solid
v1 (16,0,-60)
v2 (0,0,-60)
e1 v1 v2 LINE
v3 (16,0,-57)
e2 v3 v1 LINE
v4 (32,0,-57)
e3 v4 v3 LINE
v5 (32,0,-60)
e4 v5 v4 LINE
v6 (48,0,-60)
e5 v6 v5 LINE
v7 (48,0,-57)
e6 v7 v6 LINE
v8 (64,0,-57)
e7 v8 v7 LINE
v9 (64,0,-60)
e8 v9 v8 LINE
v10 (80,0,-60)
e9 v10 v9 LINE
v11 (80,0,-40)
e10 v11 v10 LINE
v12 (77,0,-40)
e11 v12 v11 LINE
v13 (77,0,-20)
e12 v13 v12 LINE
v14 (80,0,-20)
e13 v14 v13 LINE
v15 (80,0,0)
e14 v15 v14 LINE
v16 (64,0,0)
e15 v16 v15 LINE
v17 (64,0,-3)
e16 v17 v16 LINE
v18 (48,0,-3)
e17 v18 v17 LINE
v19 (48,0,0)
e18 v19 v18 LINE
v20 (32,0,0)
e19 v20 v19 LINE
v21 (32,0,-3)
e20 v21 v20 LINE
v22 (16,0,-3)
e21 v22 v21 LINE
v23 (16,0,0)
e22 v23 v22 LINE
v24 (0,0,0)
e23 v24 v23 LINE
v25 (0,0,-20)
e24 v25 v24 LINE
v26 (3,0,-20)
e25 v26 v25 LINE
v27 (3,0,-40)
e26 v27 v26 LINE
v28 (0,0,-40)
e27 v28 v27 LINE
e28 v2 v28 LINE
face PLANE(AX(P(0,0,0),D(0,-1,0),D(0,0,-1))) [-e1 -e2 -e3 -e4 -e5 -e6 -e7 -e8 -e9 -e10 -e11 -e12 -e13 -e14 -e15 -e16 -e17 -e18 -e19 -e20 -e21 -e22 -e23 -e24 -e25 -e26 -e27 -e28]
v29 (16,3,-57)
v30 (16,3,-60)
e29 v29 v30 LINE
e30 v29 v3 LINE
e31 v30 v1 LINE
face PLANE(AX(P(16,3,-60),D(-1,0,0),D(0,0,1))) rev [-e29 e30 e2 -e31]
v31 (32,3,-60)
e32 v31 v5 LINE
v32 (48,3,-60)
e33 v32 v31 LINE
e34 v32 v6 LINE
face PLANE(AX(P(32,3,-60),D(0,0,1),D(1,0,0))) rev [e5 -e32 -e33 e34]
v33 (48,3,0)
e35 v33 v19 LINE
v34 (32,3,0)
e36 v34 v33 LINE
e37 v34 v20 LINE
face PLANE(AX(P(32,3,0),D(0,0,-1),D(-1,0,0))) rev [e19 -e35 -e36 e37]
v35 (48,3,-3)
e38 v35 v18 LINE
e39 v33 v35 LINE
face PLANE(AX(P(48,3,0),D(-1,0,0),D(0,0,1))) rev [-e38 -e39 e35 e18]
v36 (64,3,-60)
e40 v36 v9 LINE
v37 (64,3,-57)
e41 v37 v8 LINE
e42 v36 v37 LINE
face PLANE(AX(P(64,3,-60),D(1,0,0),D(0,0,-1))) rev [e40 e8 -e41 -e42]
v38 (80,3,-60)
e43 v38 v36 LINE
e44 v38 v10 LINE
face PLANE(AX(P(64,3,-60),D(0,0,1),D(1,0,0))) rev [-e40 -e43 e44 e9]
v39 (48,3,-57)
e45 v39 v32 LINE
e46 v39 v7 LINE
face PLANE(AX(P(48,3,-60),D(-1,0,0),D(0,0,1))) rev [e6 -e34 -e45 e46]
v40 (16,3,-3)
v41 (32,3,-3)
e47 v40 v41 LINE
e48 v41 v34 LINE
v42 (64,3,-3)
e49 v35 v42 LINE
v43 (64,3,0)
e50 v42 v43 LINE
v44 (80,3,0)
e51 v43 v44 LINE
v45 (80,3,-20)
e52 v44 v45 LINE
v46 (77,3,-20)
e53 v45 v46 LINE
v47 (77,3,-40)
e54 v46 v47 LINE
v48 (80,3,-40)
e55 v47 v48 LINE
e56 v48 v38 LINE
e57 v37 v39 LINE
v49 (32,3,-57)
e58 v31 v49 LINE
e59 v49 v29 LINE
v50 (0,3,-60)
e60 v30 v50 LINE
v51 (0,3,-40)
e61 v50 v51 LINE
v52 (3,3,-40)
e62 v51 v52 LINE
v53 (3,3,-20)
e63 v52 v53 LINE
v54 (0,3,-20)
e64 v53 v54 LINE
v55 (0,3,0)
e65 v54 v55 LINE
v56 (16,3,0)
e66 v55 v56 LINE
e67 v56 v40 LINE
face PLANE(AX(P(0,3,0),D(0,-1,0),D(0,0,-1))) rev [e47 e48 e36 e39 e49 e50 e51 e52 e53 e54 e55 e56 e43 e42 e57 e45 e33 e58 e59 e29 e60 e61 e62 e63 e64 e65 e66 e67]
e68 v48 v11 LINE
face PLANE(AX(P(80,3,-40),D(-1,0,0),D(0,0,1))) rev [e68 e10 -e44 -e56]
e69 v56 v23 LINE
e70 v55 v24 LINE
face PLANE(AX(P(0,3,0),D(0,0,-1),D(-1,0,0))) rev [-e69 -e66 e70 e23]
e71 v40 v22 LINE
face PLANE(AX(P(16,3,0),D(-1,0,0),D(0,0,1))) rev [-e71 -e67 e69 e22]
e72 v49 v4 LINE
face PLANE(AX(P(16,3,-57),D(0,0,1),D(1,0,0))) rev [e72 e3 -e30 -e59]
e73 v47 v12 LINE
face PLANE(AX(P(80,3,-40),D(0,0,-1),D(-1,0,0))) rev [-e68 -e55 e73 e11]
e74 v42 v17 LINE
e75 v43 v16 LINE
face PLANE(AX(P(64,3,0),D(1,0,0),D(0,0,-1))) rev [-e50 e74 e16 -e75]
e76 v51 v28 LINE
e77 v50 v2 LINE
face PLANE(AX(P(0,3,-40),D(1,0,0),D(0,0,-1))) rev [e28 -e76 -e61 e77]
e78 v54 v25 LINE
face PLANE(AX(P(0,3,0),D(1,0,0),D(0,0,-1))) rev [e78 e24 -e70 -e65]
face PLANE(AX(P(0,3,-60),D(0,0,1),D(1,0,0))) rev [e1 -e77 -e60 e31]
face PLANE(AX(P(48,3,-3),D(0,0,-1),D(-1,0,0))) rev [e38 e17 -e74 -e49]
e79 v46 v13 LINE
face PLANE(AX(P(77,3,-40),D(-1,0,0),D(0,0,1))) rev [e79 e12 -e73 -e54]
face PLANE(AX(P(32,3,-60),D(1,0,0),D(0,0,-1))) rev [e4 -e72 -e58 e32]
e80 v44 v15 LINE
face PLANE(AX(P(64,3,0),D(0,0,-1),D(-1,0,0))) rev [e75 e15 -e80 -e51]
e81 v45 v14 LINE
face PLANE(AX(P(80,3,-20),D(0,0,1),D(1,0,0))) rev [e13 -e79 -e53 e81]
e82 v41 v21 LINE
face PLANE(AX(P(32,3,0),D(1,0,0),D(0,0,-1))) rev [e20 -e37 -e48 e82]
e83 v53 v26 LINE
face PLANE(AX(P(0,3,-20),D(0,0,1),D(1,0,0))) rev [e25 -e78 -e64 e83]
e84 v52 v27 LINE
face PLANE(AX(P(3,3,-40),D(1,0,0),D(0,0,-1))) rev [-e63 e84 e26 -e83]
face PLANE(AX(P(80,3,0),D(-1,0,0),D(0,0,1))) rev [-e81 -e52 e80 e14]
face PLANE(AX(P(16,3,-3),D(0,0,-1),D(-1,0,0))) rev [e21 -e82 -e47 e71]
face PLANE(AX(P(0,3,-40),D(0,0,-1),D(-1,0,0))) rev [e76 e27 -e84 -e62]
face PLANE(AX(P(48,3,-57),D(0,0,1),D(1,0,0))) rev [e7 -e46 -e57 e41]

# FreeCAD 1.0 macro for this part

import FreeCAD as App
import Part
import Sketcher
from FreeCAD import Vector
Q = App.Units.Quantity

doc = App.newDocument("Part")
body = doc.addObject("PartDesign::Body", "Body")

# Sketch on XZ plane
sketch1 = body.newObject("Sketcher::SketchObject", "Sketch")
sketch1.AttachmentSupport = (doc.getObject("XZ_Plane"), [""])
sketch1.MapMode = "FlatFace"
sketch1.addGeometry(Part.LineSegment(Vector(48, -60, 0), Vector(32, -60, 0)), False)
sketch1.addGeometry(Part.LineSegment(Vector(32, -60, 0), Vector(32, -57, 0)), False)
sketch1.addGeometry(Part.LineSegment(Vector(32, -57, 0), Vector(16, -57, 0)), False)
sketch1.addGeometry(Part.LineSegment(Vector(16, -57, 0), Vector(16, -60, 0)), False)
sketch1.addGeometry(Part.LineSegment(Vector(16, -60, 0), Vector(0, -60, 0)), False)
sketch1.addGeometry(Part.LineSegment(Vector(0, -60, 0), Vector(0, -40, 0)), False)
sketch1.addGeometry(Part.LineSegment(Vector(0, -40, 0), Vector(3, -40, 0)), False)
sketch1.addGeometry(Part.LineSegment(Vector(3, -40, 0), Vector(3, -20, 0)), False)
sketch1.addGeometry(Part.LineSegment(Vector(3, -20, 0), Vector(0, -20, 0)), False)
sketch1.addGeometry(Part.LineSegment(Vector(0, -20, 0), Vector(0, 0, 0)), False)
sketch1.addGeometry(Part.LineSegment(Vector(0, 0, 0), Vector(16, 0, 0)), False)
sketch1.addGeometry(Part.LineSegment(Vector(16, 0, 0), Vector(16, -3, 0)), False)
sketch1.addGeometry(Part.LineSegment(Vector(16, -3, 0), Vector(32, -3, 0)), False)
sketch1.addGeometry(Part.LineSegment(Vector(32, -3, 0), Vector(32, 0, 0)), False)
sketch1.addGeometry(Part.LineSegment(Vector(32, 0, 0), Vector(48, 0, 0)), False)
sketch1.addGeometry(Part.LineSegment(Vector(48, 0, 0), Vector(48, -3, 0)), False)
sketch1.addGeometry(Part.LineSegment(Vector(48, -3, 0), Vector(64, -3, 0)), False)
sketch1.addGeometry(Part.LineSegment(Vector(64, -3, 0), Vector(64, 0, 0)), False)
sketch1.addGeometry(Part.LineSegment(Vector(64, 0, 0), Vector(80, 0, 0)), False)
sketch1.addGeometry(Part.LineSegment(Vector(80, 0, 0), Vector(80, -20, 0)), False)
sketch1.addGeometry(Part.LineSegment(Vector(80, -20, 0), Vector(77, -20, 0)), False)
sketch1.addGeometry(Part.LineSegment(Vector(77, -20, 0), Vector(77, -40, 0)), False)
sketch1.addGeometry(Part.LineSegment(Vector(77, -40, 0), Vector(80, -40, 0)), False)
sketch1.addGeometry(Part.LineSegment(Vector(80, -40, 0), Vector(80, -60, 0)), False)
sketch1.addGeometry(Part.LineSegment(Vector(80, -60, 0), Vector(64, -60, 0)), False)
sketch1.addGeometry(Part.LineSegment(Vector(64, -60, 0), Vector(64, -57, 0)), False)
sketch1.addGeometry(Part.LineSegment(Vector(64, -57, 0), Vector(48, -57, 0)), False)
sketch1.addGeometry(Part.LineSegment(Vector(48, -57, 0), Vector(48, -60, 0)), False)
sketch1.addConstraint(Sketcher.Constraint("Coincident", 0, 2, 1, 1))
sketch1.addConstraint(Sketcher.Constraint("Coincident", 1, 2, 2, 1))
sketch1.addConstraint(Sketcher.Constraint("Coincident", 2, 2, 3, 1))
sketch1.addConstraint(Sketcher.Constraint("Coincident", 3, 2, 4, 1))
sketch1.addConstraint(Sketcher.Constraint("Coincident", 4, 2, 5, 1))
sketch1.addConstraint(Sketcher.Constraint("Coincident", 5, 2, 6, 1))
sketch1.addConstraint(Sketcher.Constraint("Coincident", 6, 2, 7, 1))
sketch1.addConstraint(Sketcher.Constraint("Coincident", 7, 2, 8, 1))
sketch1.addConstraint(Sketcher.Constraint("Coincident", 8, 2, 9, 1))
sketch1.addConstraint(Sketcher.Constraint("Coincident", 9, 2, 10, 1))
sketch1.addConstraint(Sketcher.Constraint("Coincident", 10, 2, 11, 1))
sketch1.addConstraint(Sketcher.Constraint("Coincident", 11, 2, 12, 1))
sketch1.addConstraint(Sketcher.Constraint("Coincident", 12, 2, 13, 1))
sketch1.addConstraint(Sketcher.Constraint("Coincident", 13, 2, 14, 1))
sketch1.addConstraint(Sketcher.Constraint("Coincident", 14, 2, 15, 1))
sketch1.addConstraint(Sketcher.Constraint("Coincident", 15, 2, 16, 1))
sketch1.addConstraint(Sketcher.Constraint("Coincident", 16, 2, 17, 1))
sketch1.addConstraint(Sketcher.Constraint("Coincident", 17, 2, 18, 1))
sketch1.addConstraint(Sketcher.Constraint("Coincident", 18, 2, 19, 1))
sketch1.addConstraint(Sketcher.Constraint("Coincident", 19, 2, 20, 1))
sketch1.addConstraint(Sketcher.Constraint("Coincident", 20, 2, 21, 1))
sketch1.addConstraint(Sketcher.Constraint("Coincident", 21, 2, 22, 1))
sketch1.addConstraint(Sketcher.Constraint("Coincident", 22, 2, 23, 1))
sketch1.addConstraint(Sketcher.Constraint("Coincident", 23, 2, 24, 1))
sketch1.addConstraint(Sketcher.Constraint("Coincident", 24, 2, 25, 1))
sketch1.addConstraint(Sketcher.Constraint("Coincident", 25, 2, 26, 1))
sketch1.addConstraint(Sketcher.Constraint("Coincident", 26, 2, 27, 1))
sketch1.addConstraint(Sketcher.Constraint("Coincident", 27, 2, 0, 1))
sketch1.addConstraint(Sketcher.Constraint("Horizontal", 0))
sketch1.addConstraint(Sketcher.Constraint("Vertical", 1))
sketch1.addConstraint(Sketcher.Constraint("Horizontal", 2))
sketch1.addConstraint(Sketcher.Constraint("Vertical", 3))
sketch1.addConstraint(Sketcher.Constraint("Horizontal", 4))
sketch1.addConstraint(Sketcher.Constraint("Vertical", 5))
sketch1.addConstraint(Sketcher.Constraint("Horizontal", 6))
sketch1.addConstraint(Sketcher.Constraint("Vertical", 7))
sketch1.addConstraint(Sketcher.Constraint("Horizontal", 8))
sketch1.addConstraint(Sketcher.Constraint("Vertical", 9))
sketch1.addConstraint(Sketcher.Constraint("Horizontal", 10))
sketch1.addConstraint(Sketcher.Constraint("Vertical", 11))
sketch1.addConstraint(Sketcher.Constraint("Horizontal", 12))
sketch1.addConstraint(Sketcher.Constraint("Vertical", 13))
sketch1.addConstraint(Sketcher.Constraint("Horizontal", 14))
sketch1.addConstraint(Sketcher.Constraint("Vertical", 15))
sketch1.addConstraint(Sketcher.Constraint("Horizontal", 16))
sketch1.addConstraint(Sketcher.Constraint("Vertical", 17))
sketch1.addConstraint(Sketcher.Constraint("Horizontal", 18))
sketch1.addConstraint(Sketcher.Constraint("Vertical", 19))
sketch1.addConstraint(Sketcher.Constraint("Horizontal", 20))
sketch1.addConstraint(Sketcher.Constraint("Vertical", 21))
sketch1.addConstraint(Sketcher.Constraint("Horizontal", 22))
sketch1.addConstraint(Sketcher.Constraint("Vertical", 23))
sketch1.addConstraint(Sketcher.Constraint("Horizontal", 24))
sketch1.addConstraint(Sketcher.Constraint("Vertical", 25))
sketch1.addConstraint(Sketcher.Constraint("Horizontal", 26))
sketch1.addConstraint(Sketcher.Constraint("Vertical", 27))
sketch1.addConstraint(Sketcher.Constraint("Coincident", 9, 2, -1, 1))
sketch1.addConstraint(Sketcher.Constraint("PointOnObject", 4, 2, -2))
sketch1.addConstraint(Sketcher.Constraint("PointOnObject", 13, 2, -1))
sketch1.addConstraint(Sketcher.Constraint("PointOnObject", 17, 2, -1))
sketch1.addConstraint(Sketcher.Constraint("Horizontal", 0, 2, 3, 2))
sketch1.addConstraint(Sketcher.Constraint("Horizontal", 12, 2, 15, 2))
sketch1.addConstraint(Sketcher.Constraint("Horizontal", 8, 2, 19, 2))
sketch1.addConstraint(Sketcher.Constraint("Horizontal", 6, 2, 21, 2))
sketch1.addConstraint(Sketcher.Constraint("Horizontal", 4, 2, 23, 2))
sketch1.addConstraint(Sketcher.Constraint("Horizontal", 2, 2, 25, 2))
sketch1.addConstraint(Sketcher.Constraint("Vertical", 3, 2, 10, 2))
sketch1.addConstraint(Sketcher.Constraint("Vertical", 1, 2, 12, 2))
sketch1.addConstraint(Sketcher.Constraint("Vertical", 19, 2, 22, 2))
sketch1.addConstraint(Sketcher.Constraint("Vertical", 17, 2, 24, 2))
sketch1.addConstraint(Sketcher.Constraint("Vertical", 15, 2, 26, 2))
sketch1.addConstraint(Sketcher.Constraint("Equal", 0, 2))
sketch1.addConstraint(Sketcher.Constraint("Equal", 2, 4))
sketch1.addConstraint(Sketcher.Constraint("Equal", 14, 16))
sketch1.addConstraint(Sketcher.Constraint("Equal", 16, 18))
sketch1.addConstraint(Sketcher.Constraint("Equal", 8, 20))
sketch1.addConstraint(Sketcher.Constraint("Equal", 22, 1))
sketch1.addConstraint(Sketcher.Constraint("Equal", 5, 7))
sketch1.addConstraint(Sketcher.Constraint("Equal", 7, 9))
sketch1.addConstraint(Sketcher.Constraint("Equal", 3, 11))
sketch1.addConstraint(Sketcher.Constraint("DistanceX", 0, 2, 0, 1, Q("16 mm")))
sketch1.addConstraint(Sketcher.Constraint("DistanceX", 6, 1, 6, 2, Q("3 mm")))
sketch1.addConstraint(Sketcher.Constraint("DistanceY", 5, 1, 5, 2, Q("20 mm")))
pad1 = body.newObject("PartDesign::Pad", "Pad")
pad1.Profile = sketch1
pad1.Length = 3
pad1.Reversed = True

doc.recompute()
